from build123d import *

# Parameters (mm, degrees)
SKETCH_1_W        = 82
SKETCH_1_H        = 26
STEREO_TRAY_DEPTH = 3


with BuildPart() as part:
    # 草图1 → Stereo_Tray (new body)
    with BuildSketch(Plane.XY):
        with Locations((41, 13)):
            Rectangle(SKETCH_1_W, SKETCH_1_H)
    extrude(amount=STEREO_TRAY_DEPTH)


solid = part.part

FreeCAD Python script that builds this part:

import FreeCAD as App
import Part
import Sketcher

V = App.Vector
Q = App.Units.Quantity


def add_polygon(sketch, points):
    """Adds a closed chain of lines whose ends are joined by coincident constraints."""
    first, n = sketch.GeometryCount, len(points)
    for a, b in zip(points, points[1:] + points[:1]):
        sketch.addGeometry(Part.LineSegment(App.Vector(*a, 0), App.Vector(*b, 0)), False)
    for i in range(n):
        sketch.addConstraint(Sketcher.Constraint("Coincident", first + i, 2, first + (i + 1) % n, 1))

doc = App.newDocument("Part")
body = doc.addObject("PartDesign::Body", "Body")

# Sketch on XY plane
sketch1 = doc.addObject("Sketcher::SketchObject", "Sketch")
body.addObject(sketch1)
sketch1.AttachmentSupport = (doc.XY_Plane, [""])
sketch1.MapMode = "FlatFace"
add_polygon(sketch1, [(0, 26), (0, 0), (82, 0), (82, 26)])  # lines 0-3
sketch1.addConstraint(Sketcher.Constraint("Vertical", 0))
sketch1.addConstraint(Sketcher.Constraint("Horizontal", 1))
sketch1.addConstraint(Sketcher.Constraint("Vertical", 2))
sketch1.addConstraint(Sketcher.Constraint("Horizontal", 3))
sketch1.addConstraint(Sketcher.Constraint("Coincident", 0, 2, -1, 1))
sketch1.addConstraint(Sketcher.Constraint("DistanceX", 1, 1, 1, 2, Q("82 mm")))
sketch1.addConstraint(Sketcher.Constraint("DistanceY", 0, 2, 0, 1, Q("26 mm")))
pad1 = doc.addObject("PartDesign::Pad", "Pad")
body.addObject(pad1)
pad1.Profile = sketch1
pad1.Length = 3

doc.recompute()
